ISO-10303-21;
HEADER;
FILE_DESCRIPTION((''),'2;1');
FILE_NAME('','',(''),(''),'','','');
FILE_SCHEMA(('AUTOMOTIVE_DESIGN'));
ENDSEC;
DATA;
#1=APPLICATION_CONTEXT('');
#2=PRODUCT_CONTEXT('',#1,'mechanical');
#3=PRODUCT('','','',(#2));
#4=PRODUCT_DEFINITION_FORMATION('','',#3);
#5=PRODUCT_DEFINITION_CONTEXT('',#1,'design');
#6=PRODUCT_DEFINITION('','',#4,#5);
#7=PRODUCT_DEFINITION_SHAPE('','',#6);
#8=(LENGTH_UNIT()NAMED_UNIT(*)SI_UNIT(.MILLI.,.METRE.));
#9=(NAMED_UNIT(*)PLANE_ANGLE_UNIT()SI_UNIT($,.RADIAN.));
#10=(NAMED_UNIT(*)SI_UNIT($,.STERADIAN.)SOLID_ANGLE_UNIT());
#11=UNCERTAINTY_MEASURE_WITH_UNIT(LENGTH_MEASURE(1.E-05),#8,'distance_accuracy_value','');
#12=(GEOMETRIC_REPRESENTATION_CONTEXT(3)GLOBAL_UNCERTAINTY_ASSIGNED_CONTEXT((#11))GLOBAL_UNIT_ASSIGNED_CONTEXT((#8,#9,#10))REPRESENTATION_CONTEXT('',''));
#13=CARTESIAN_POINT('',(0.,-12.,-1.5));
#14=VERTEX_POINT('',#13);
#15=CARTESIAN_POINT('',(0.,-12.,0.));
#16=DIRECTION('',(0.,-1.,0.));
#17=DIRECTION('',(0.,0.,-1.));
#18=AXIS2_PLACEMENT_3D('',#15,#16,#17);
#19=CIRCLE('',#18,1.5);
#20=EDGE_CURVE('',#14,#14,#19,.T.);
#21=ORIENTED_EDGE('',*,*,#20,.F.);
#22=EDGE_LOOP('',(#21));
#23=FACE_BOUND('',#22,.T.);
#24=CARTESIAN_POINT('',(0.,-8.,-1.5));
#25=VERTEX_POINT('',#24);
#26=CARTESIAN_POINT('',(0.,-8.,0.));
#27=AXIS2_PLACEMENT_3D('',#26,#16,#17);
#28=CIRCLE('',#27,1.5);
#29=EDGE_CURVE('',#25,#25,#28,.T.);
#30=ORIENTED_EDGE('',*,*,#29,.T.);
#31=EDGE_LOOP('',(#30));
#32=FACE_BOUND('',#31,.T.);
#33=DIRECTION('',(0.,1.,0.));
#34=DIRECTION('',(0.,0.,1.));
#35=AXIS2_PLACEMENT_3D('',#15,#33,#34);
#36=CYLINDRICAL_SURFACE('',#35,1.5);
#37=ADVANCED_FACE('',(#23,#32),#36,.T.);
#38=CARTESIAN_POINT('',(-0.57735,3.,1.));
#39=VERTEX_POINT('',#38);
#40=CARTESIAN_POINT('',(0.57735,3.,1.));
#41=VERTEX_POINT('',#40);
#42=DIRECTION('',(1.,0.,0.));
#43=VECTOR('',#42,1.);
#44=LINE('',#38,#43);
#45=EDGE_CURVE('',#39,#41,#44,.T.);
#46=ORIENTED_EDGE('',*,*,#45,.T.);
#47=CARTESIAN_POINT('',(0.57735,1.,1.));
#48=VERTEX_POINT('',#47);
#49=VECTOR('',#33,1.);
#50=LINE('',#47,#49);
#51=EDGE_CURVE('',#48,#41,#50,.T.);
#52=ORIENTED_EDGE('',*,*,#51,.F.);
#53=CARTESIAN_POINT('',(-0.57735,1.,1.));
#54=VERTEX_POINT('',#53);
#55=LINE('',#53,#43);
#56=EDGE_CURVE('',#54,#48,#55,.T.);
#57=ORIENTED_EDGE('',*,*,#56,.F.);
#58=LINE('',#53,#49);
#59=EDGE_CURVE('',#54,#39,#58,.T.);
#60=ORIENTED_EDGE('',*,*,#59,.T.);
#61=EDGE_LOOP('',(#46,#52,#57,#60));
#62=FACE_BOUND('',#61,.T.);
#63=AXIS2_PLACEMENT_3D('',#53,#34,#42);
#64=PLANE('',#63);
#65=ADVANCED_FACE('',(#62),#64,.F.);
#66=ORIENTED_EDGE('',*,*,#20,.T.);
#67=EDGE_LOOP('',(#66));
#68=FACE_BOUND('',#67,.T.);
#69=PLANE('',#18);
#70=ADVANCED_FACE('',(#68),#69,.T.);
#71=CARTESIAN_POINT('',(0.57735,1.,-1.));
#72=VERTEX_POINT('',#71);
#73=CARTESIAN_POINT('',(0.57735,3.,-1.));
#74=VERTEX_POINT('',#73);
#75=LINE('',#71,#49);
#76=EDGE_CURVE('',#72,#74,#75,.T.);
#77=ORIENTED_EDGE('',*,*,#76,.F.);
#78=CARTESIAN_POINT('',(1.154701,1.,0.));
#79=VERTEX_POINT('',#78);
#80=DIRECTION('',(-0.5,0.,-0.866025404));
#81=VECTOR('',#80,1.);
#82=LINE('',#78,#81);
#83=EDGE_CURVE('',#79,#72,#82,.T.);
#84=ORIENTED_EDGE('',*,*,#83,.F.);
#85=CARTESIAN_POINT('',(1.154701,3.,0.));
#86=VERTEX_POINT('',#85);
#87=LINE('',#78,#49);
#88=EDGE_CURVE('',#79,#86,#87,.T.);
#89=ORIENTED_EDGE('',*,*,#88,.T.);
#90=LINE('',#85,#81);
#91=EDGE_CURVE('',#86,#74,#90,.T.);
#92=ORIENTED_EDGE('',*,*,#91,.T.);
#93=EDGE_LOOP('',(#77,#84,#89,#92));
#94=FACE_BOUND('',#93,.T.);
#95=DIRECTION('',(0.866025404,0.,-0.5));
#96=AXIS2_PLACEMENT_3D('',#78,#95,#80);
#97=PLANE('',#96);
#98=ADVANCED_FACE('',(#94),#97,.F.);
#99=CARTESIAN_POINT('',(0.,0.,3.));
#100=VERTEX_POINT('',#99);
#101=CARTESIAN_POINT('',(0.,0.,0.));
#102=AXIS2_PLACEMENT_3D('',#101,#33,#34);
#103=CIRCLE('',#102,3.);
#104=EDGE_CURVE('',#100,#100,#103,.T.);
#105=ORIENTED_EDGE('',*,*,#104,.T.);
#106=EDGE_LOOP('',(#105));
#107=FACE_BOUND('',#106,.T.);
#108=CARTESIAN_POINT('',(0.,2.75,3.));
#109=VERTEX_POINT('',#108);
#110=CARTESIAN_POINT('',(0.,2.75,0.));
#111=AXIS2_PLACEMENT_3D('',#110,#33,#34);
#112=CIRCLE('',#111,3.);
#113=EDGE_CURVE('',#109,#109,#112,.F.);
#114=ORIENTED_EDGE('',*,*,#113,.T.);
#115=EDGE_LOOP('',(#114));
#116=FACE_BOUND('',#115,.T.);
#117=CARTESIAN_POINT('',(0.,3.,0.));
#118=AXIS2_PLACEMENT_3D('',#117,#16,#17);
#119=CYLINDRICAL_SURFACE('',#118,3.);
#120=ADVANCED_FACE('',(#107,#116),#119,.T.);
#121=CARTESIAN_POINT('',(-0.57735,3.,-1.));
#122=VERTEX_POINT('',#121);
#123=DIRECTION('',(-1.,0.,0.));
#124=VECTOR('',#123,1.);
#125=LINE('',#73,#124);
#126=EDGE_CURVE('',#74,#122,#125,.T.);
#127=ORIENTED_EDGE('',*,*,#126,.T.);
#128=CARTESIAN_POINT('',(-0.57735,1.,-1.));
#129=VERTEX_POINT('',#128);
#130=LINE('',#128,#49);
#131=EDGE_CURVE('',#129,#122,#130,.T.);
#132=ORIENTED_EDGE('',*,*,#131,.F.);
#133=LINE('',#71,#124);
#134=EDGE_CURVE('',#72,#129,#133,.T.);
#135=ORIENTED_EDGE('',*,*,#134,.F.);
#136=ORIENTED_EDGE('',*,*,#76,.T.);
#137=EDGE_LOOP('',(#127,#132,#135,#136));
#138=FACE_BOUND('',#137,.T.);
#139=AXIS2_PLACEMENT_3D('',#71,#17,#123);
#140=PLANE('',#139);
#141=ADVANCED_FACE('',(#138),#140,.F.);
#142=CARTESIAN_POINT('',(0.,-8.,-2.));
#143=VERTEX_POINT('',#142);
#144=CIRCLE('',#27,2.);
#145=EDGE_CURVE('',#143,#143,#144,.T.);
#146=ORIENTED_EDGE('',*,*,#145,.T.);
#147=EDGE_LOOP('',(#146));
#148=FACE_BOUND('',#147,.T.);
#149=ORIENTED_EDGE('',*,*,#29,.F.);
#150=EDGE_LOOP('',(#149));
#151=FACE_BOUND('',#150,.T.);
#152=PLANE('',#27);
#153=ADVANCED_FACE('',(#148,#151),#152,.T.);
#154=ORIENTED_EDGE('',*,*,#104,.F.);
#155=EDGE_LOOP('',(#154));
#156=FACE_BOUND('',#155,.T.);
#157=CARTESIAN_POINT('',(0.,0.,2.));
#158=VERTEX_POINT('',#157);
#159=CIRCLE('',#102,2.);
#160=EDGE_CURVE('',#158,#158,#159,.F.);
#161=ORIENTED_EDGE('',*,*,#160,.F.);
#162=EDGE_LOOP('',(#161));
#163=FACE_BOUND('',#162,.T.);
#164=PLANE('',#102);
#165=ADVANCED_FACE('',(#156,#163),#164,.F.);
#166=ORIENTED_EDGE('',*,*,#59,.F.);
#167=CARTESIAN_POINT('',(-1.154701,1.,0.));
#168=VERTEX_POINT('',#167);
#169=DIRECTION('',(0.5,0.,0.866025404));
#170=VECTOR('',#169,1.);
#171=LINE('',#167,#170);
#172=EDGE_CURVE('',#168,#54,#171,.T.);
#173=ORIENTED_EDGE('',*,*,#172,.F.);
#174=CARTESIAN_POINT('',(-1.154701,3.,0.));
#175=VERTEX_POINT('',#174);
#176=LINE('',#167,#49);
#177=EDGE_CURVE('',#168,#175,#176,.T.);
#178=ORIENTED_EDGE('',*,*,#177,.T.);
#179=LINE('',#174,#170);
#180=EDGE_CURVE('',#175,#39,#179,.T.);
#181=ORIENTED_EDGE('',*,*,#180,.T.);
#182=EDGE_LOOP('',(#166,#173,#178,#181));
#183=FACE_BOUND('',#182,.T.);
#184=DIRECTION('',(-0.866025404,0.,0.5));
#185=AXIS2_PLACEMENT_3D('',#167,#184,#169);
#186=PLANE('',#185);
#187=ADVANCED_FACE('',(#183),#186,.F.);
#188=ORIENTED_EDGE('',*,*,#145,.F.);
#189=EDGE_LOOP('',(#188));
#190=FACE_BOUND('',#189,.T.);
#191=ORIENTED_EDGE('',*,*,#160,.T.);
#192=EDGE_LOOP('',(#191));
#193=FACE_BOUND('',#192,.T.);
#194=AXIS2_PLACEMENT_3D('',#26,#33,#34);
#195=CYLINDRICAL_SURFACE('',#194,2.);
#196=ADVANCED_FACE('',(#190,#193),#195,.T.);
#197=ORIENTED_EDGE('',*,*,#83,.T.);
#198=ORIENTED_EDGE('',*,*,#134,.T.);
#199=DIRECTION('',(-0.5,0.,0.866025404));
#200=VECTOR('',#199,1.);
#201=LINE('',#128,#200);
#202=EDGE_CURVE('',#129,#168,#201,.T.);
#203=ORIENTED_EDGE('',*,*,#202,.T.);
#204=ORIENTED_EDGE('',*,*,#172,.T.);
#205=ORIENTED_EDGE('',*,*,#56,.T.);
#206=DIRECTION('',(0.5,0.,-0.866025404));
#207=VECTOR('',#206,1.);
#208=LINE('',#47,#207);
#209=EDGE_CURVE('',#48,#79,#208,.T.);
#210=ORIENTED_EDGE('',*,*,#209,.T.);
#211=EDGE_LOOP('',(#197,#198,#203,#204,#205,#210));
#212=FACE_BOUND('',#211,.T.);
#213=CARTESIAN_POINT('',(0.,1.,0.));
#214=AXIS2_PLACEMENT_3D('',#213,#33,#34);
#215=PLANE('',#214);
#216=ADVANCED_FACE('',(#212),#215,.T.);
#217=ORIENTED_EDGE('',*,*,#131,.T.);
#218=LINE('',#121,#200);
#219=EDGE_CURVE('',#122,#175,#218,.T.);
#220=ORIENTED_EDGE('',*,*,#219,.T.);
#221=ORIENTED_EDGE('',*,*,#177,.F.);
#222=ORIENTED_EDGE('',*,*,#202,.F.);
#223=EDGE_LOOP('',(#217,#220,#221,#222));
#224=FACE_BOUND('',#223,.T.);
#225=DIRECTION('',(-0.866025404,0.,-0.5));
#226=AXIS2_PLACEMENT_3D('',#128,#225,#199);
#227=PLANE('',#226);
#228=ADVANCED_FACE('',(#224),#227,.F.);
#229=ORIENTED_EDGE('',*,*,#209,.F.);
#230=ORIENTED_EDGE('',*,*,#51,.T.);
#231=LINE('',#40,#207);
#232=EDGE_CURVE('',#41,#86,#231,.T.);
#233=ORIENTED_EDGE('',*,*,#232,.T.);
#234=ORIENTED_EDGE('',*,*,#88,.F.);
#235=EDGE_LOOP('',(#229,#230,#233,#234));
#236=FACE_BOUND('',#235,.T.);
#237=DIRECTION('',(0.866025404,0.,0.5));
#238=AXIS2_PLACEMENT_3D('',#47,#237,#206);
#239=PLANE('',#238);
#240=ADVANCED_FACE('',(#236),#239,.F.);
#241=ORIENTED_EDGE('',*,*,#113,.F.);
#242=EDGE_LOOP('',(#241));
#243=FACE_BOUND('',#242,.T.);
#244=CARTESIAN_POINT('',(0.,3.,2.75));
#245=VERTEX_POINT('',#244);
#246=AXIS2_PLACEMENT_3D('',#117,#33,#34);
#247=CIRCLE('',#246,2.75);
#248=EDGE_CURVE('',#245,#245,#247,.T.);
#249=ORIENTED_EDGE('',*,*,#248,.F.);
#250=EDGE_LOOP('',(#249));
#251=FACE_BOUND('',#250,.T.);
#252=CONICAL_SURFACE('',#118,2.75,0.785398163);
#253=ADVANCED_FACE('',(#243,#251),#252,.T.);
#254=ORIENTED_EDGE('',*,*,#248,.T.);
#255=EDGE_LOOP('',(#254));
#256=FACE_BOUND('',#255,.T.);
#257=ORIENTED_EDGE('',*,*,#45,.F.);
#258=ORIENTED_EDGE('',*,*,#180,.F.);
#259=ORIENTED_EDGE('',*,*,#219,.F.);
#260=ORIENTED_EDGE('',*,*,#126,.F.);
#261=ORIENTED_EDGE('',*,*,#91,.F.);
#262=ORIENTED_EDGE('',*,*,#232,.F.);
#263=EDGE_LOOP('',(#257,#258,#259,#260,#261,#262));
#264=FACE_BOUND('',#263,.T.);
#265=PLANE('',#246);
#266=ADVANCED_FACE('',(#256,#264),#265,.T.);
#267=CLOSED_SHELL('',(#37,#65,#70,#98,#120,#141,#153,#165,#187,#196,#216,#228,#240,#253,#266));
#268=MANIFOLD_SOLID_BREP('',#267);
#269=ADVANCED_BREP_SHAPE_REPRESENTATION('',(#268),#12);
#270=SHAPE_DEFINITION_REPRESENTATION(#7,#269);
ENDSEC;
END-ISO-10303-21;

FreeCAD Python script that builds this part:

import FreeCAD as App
import Part
import Sketcher

V = App.Vector
Q = App.Units.Quantity


def edges_at(feature, points):
    """Names of the edges that pass closest to the given points."""
    edges = feature.Shape.Edges
    near = lambda p: min(range(len(edges)), key=lambda i: edges[i].distToShape(Part.Vertex(*p))[0])
    return sorted({f"Edge{near(p) + 1}" for p in points})

doc = App.newDocument("Part")
params = doc.addObject("Spreadsheet::Sheet", "Params")
for row, (alias, value) in enumerate([
    ("sketch1_diameter", "6 mm"),
    ("pad1_length", "3 mm"),
    ("sketch2_diameter", "4 mm"),
    ("pad2_length", "8 mm"),
    ("sketch3_diameter", "3 mm"),
    ("pad3_length", "4 mm"),
    ("pocket1_length", "2 mm"),
    ("chamfer_size", "0.25 mm"),
], start=1):
    params.set(f"A{row}", alias)
    params.set(f"B{row}", "=" + value)
    params.setAlias(f"B{row}", alias)

body = doc.addObject("PartDesign::Body", "Body")

sketch1 = body.newObject("Sketcher::SketchObject", "Sketch")
sketch1.AttachmentSupport = (doc.getObject("XZ_Plane"), [""])
sketch1.MapMode = "FlatFace"
sketch1.addGeometry(Part.Circle(V(0, 0, 0), V(0, 0, 1), 3), False)
sketch1.addConstraint(Sketcher.Constraint("Coincident", 0, 3, -1, 1))
sketch1.addConstraint(Sketcher.Constraint("Diameter", 0, Q("6 mm")))
sketch1.setExpression("Constraints[1]", "Params.sketch1_diameter")
pad1 = body.newObject("PartDesign::Pad", "Pad")
pad1.Profile = sketch1
pad1.setExpression("Length", "Params.pad1_length")
pad1.Reversed = True

sketch2 = body.newObject("Sketcher::SketchObject", "Sketch001")
sketch2.AttachmentSupport = (doc.getObject("XZ_Plane"), [""])
sketch2.MapMode = "FlatFace"
sketch2.addGeometry(Part.Circle(V(0, 0, 0), V(0, 0, 1), 2), False)
sketch2.addConstraint(Sketcher.Constraint("Coincident", 0, 3, -1, 1))
sketch2.addConstraint(Sketcher.Constraint("Diameter", 0, Q("4 mm")))
sketch2.setExpression("Constraints[1]", "Params.sketch2_diameter")
pad2 = body.newObject("PartDesign::Pad", "Pad001")
pad2.Profile = sketch2
pad2.setExpression("Length", "Params.pad2_length")

sketch3 = body.newObject("Sketcher::SketchObject", "Sketch002")
sketch3.AttachmentSupport = (doc.getObject("XZ_Plane"), [""])
sketch3.MapMode = "FlatFace"
sketch3.AttachmentOffset = App.Placement(V(0, 0, 8), App.Rotation())
sketch3.addGeometry(Part.Circle(V(0, 0, 0), V(0, 0, 1), 1.5), False)
sketch3.addConstraint(Sketcher.Constraint("Coincident", 0, 3, -1, 1))
sketch3.addConstraint(Sketcher.Constraint("Diameter", 0, Q("3 mm")))
sketch3.setExpression("Constraints[1]", "Params.sketch3_diameter")
pad3 = body.newObject("PartDesign::Pad", "Pad002")
pad3.Profile = sketch3
pad3.setExpression("Length", "Params.pad3_length")

sketch4 = body.newObject("Sketcher::SketchObject", "Sketch003")
sketch4.AttachmentSupport = (doc.getObject("XZ_Plane"), [""])
sketch4.MapMode = "FlatFace"
sketch4.AttachmentOffset = App.Placement(V(0, 0, -3), App.Rotation())
sketch4.addGeometry(Part.LineSegment(V(0.6, -1, 0), V(-0.6, -1, 0)), False)
sketch4.addGeometry(Part.LineSegment(V(-0.6, -1, 0), V(-1.2, 0, 0)), False)
sketch4.addGeometry(Part.LineSegment(V(-1.2, 0, 0), V(-0.6, 1, 0)), False)
sketch4.addGeometry(Part.LineSegment(V(-0.6, 1, 0), V(0.6, 1, 0)), False)
sketch4.addGeometry(Part.LineSegment(V(0.6, 1, 0), V(1.2, 0, 0)), False)
sketch4.addGeometry(Part.LineSegment(V(1.2, 0, 0), V(0.6, -1, 0)), False)
sketch4.addConstraint(Sketcher.Constraint("Coincident", 0, 2, 1, 1))
sketch4.addConstraint(Sketcher.Constraint("Coincident", 1, 2, 2, 1))
sketch4.addConstraint(Sketcher.Constraint("Coincident", 2, 2, 3, 1))
sketch4.addConstraint(Sketcher.Constraint("Coincident", 3, 2, 4, 1))
sketch4.addConstraint(Sketcher.Constraint("Coincident", 4, 2, 5, 1))
sketch4.addConstraint(Sketcher.Constraint("Coincident", 5, 2, 0, 1))
sketch4.addConstraint(Sketcher.Constraint("Horizontal", 0))
sketch4.addConstraint(Sketcher.Constraint("Horizontal", 3))
sketch4.addConstraint(Sketcher.Constraint("Symmetric", 0, 2, 3, 2, -1, 1))
sketch4.addConstraint(Sketcher.Constraint("Symmetric", 1, 2, 4, 2, -1, 1))
sketch4.addConstraint(Sketcher.Constraint("PointOnObject", 1, 2, -1))
sketch4.addConstraint(Sketcher.Constraint("Parallel", 2, 5))
sketch4.addConstraint(Sketcher.Constraint("Vertical", 0, 2, 2, 2))
sketch4.addConstraint(Sketcher.Constraint("Angle", 1, Q("120 deg")))
sketch4.addConstraint(Sketcher.Constraint("DistanceY", 0, 2, -1, 1, Q("1 mm")))
sketch4.addConstraint(Sketcher.Constraint("DistanceX", 0, 2, 0, 1, Q("1.154701 mm")))
pocket1 = body.newObject("PartDesign::Pocket", "Pocket")
pocket1.Profile = sketch4
pocket1.setExpression("Length", "Params.pocket1_length")
pocket1.Reversed = True
doc.recompute()

chamfer = body.newObject("PartDesign::Chamfer", "Chamfer")
chamfer.Base = (pocket1, edges_at(pocket1, [(0, 3, -3)]))
chamfer.setExpression("Size", "Params.chamfer_size")

doc.recompute()
